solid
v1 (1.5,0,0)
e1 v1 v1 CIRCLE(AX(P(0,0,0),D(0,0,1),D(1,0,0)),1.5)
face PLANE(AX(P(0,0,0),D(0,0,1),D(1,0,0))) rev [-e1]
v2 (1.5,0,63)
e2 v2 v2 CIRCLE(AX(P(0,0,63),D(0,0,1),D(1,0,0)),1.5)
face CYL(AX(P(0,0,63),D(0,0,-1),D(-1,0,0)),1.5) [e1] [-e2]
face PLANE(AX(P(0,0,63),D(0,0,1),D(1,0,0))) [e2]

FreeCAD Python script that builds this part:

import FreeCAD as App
import Part
import Sketcher

V = App.Vector

doc = App.newDocument("Part")
body = doc.addObject("PartDesign::Body", "Body")

# Sketch on XY plane
sketch1 = body.newObject("Sketcher::SketchObject", "Sketch")
sketch1.AttachmentSupport = (doc.getObject("XY_Plane"), [""])
sketch1.MapMode = "FlatFace"
sketch1.addGeometry(Part.Circle(V(0, 0, 0), V(0, 0, 1), 1.5), False)
sketch1.addConstraint(Sketcher.Constraint("Coincident", 0, 3, -1, 1))
sketch1.addConstraint(Sketcher.Constraint("Diameter", 0, 3.0))
pad1 = body.newObject("PartDesign::Pad", "Pad")
pad1.Profile = sketch1
pad1.Length = 63

doc.recompute()
